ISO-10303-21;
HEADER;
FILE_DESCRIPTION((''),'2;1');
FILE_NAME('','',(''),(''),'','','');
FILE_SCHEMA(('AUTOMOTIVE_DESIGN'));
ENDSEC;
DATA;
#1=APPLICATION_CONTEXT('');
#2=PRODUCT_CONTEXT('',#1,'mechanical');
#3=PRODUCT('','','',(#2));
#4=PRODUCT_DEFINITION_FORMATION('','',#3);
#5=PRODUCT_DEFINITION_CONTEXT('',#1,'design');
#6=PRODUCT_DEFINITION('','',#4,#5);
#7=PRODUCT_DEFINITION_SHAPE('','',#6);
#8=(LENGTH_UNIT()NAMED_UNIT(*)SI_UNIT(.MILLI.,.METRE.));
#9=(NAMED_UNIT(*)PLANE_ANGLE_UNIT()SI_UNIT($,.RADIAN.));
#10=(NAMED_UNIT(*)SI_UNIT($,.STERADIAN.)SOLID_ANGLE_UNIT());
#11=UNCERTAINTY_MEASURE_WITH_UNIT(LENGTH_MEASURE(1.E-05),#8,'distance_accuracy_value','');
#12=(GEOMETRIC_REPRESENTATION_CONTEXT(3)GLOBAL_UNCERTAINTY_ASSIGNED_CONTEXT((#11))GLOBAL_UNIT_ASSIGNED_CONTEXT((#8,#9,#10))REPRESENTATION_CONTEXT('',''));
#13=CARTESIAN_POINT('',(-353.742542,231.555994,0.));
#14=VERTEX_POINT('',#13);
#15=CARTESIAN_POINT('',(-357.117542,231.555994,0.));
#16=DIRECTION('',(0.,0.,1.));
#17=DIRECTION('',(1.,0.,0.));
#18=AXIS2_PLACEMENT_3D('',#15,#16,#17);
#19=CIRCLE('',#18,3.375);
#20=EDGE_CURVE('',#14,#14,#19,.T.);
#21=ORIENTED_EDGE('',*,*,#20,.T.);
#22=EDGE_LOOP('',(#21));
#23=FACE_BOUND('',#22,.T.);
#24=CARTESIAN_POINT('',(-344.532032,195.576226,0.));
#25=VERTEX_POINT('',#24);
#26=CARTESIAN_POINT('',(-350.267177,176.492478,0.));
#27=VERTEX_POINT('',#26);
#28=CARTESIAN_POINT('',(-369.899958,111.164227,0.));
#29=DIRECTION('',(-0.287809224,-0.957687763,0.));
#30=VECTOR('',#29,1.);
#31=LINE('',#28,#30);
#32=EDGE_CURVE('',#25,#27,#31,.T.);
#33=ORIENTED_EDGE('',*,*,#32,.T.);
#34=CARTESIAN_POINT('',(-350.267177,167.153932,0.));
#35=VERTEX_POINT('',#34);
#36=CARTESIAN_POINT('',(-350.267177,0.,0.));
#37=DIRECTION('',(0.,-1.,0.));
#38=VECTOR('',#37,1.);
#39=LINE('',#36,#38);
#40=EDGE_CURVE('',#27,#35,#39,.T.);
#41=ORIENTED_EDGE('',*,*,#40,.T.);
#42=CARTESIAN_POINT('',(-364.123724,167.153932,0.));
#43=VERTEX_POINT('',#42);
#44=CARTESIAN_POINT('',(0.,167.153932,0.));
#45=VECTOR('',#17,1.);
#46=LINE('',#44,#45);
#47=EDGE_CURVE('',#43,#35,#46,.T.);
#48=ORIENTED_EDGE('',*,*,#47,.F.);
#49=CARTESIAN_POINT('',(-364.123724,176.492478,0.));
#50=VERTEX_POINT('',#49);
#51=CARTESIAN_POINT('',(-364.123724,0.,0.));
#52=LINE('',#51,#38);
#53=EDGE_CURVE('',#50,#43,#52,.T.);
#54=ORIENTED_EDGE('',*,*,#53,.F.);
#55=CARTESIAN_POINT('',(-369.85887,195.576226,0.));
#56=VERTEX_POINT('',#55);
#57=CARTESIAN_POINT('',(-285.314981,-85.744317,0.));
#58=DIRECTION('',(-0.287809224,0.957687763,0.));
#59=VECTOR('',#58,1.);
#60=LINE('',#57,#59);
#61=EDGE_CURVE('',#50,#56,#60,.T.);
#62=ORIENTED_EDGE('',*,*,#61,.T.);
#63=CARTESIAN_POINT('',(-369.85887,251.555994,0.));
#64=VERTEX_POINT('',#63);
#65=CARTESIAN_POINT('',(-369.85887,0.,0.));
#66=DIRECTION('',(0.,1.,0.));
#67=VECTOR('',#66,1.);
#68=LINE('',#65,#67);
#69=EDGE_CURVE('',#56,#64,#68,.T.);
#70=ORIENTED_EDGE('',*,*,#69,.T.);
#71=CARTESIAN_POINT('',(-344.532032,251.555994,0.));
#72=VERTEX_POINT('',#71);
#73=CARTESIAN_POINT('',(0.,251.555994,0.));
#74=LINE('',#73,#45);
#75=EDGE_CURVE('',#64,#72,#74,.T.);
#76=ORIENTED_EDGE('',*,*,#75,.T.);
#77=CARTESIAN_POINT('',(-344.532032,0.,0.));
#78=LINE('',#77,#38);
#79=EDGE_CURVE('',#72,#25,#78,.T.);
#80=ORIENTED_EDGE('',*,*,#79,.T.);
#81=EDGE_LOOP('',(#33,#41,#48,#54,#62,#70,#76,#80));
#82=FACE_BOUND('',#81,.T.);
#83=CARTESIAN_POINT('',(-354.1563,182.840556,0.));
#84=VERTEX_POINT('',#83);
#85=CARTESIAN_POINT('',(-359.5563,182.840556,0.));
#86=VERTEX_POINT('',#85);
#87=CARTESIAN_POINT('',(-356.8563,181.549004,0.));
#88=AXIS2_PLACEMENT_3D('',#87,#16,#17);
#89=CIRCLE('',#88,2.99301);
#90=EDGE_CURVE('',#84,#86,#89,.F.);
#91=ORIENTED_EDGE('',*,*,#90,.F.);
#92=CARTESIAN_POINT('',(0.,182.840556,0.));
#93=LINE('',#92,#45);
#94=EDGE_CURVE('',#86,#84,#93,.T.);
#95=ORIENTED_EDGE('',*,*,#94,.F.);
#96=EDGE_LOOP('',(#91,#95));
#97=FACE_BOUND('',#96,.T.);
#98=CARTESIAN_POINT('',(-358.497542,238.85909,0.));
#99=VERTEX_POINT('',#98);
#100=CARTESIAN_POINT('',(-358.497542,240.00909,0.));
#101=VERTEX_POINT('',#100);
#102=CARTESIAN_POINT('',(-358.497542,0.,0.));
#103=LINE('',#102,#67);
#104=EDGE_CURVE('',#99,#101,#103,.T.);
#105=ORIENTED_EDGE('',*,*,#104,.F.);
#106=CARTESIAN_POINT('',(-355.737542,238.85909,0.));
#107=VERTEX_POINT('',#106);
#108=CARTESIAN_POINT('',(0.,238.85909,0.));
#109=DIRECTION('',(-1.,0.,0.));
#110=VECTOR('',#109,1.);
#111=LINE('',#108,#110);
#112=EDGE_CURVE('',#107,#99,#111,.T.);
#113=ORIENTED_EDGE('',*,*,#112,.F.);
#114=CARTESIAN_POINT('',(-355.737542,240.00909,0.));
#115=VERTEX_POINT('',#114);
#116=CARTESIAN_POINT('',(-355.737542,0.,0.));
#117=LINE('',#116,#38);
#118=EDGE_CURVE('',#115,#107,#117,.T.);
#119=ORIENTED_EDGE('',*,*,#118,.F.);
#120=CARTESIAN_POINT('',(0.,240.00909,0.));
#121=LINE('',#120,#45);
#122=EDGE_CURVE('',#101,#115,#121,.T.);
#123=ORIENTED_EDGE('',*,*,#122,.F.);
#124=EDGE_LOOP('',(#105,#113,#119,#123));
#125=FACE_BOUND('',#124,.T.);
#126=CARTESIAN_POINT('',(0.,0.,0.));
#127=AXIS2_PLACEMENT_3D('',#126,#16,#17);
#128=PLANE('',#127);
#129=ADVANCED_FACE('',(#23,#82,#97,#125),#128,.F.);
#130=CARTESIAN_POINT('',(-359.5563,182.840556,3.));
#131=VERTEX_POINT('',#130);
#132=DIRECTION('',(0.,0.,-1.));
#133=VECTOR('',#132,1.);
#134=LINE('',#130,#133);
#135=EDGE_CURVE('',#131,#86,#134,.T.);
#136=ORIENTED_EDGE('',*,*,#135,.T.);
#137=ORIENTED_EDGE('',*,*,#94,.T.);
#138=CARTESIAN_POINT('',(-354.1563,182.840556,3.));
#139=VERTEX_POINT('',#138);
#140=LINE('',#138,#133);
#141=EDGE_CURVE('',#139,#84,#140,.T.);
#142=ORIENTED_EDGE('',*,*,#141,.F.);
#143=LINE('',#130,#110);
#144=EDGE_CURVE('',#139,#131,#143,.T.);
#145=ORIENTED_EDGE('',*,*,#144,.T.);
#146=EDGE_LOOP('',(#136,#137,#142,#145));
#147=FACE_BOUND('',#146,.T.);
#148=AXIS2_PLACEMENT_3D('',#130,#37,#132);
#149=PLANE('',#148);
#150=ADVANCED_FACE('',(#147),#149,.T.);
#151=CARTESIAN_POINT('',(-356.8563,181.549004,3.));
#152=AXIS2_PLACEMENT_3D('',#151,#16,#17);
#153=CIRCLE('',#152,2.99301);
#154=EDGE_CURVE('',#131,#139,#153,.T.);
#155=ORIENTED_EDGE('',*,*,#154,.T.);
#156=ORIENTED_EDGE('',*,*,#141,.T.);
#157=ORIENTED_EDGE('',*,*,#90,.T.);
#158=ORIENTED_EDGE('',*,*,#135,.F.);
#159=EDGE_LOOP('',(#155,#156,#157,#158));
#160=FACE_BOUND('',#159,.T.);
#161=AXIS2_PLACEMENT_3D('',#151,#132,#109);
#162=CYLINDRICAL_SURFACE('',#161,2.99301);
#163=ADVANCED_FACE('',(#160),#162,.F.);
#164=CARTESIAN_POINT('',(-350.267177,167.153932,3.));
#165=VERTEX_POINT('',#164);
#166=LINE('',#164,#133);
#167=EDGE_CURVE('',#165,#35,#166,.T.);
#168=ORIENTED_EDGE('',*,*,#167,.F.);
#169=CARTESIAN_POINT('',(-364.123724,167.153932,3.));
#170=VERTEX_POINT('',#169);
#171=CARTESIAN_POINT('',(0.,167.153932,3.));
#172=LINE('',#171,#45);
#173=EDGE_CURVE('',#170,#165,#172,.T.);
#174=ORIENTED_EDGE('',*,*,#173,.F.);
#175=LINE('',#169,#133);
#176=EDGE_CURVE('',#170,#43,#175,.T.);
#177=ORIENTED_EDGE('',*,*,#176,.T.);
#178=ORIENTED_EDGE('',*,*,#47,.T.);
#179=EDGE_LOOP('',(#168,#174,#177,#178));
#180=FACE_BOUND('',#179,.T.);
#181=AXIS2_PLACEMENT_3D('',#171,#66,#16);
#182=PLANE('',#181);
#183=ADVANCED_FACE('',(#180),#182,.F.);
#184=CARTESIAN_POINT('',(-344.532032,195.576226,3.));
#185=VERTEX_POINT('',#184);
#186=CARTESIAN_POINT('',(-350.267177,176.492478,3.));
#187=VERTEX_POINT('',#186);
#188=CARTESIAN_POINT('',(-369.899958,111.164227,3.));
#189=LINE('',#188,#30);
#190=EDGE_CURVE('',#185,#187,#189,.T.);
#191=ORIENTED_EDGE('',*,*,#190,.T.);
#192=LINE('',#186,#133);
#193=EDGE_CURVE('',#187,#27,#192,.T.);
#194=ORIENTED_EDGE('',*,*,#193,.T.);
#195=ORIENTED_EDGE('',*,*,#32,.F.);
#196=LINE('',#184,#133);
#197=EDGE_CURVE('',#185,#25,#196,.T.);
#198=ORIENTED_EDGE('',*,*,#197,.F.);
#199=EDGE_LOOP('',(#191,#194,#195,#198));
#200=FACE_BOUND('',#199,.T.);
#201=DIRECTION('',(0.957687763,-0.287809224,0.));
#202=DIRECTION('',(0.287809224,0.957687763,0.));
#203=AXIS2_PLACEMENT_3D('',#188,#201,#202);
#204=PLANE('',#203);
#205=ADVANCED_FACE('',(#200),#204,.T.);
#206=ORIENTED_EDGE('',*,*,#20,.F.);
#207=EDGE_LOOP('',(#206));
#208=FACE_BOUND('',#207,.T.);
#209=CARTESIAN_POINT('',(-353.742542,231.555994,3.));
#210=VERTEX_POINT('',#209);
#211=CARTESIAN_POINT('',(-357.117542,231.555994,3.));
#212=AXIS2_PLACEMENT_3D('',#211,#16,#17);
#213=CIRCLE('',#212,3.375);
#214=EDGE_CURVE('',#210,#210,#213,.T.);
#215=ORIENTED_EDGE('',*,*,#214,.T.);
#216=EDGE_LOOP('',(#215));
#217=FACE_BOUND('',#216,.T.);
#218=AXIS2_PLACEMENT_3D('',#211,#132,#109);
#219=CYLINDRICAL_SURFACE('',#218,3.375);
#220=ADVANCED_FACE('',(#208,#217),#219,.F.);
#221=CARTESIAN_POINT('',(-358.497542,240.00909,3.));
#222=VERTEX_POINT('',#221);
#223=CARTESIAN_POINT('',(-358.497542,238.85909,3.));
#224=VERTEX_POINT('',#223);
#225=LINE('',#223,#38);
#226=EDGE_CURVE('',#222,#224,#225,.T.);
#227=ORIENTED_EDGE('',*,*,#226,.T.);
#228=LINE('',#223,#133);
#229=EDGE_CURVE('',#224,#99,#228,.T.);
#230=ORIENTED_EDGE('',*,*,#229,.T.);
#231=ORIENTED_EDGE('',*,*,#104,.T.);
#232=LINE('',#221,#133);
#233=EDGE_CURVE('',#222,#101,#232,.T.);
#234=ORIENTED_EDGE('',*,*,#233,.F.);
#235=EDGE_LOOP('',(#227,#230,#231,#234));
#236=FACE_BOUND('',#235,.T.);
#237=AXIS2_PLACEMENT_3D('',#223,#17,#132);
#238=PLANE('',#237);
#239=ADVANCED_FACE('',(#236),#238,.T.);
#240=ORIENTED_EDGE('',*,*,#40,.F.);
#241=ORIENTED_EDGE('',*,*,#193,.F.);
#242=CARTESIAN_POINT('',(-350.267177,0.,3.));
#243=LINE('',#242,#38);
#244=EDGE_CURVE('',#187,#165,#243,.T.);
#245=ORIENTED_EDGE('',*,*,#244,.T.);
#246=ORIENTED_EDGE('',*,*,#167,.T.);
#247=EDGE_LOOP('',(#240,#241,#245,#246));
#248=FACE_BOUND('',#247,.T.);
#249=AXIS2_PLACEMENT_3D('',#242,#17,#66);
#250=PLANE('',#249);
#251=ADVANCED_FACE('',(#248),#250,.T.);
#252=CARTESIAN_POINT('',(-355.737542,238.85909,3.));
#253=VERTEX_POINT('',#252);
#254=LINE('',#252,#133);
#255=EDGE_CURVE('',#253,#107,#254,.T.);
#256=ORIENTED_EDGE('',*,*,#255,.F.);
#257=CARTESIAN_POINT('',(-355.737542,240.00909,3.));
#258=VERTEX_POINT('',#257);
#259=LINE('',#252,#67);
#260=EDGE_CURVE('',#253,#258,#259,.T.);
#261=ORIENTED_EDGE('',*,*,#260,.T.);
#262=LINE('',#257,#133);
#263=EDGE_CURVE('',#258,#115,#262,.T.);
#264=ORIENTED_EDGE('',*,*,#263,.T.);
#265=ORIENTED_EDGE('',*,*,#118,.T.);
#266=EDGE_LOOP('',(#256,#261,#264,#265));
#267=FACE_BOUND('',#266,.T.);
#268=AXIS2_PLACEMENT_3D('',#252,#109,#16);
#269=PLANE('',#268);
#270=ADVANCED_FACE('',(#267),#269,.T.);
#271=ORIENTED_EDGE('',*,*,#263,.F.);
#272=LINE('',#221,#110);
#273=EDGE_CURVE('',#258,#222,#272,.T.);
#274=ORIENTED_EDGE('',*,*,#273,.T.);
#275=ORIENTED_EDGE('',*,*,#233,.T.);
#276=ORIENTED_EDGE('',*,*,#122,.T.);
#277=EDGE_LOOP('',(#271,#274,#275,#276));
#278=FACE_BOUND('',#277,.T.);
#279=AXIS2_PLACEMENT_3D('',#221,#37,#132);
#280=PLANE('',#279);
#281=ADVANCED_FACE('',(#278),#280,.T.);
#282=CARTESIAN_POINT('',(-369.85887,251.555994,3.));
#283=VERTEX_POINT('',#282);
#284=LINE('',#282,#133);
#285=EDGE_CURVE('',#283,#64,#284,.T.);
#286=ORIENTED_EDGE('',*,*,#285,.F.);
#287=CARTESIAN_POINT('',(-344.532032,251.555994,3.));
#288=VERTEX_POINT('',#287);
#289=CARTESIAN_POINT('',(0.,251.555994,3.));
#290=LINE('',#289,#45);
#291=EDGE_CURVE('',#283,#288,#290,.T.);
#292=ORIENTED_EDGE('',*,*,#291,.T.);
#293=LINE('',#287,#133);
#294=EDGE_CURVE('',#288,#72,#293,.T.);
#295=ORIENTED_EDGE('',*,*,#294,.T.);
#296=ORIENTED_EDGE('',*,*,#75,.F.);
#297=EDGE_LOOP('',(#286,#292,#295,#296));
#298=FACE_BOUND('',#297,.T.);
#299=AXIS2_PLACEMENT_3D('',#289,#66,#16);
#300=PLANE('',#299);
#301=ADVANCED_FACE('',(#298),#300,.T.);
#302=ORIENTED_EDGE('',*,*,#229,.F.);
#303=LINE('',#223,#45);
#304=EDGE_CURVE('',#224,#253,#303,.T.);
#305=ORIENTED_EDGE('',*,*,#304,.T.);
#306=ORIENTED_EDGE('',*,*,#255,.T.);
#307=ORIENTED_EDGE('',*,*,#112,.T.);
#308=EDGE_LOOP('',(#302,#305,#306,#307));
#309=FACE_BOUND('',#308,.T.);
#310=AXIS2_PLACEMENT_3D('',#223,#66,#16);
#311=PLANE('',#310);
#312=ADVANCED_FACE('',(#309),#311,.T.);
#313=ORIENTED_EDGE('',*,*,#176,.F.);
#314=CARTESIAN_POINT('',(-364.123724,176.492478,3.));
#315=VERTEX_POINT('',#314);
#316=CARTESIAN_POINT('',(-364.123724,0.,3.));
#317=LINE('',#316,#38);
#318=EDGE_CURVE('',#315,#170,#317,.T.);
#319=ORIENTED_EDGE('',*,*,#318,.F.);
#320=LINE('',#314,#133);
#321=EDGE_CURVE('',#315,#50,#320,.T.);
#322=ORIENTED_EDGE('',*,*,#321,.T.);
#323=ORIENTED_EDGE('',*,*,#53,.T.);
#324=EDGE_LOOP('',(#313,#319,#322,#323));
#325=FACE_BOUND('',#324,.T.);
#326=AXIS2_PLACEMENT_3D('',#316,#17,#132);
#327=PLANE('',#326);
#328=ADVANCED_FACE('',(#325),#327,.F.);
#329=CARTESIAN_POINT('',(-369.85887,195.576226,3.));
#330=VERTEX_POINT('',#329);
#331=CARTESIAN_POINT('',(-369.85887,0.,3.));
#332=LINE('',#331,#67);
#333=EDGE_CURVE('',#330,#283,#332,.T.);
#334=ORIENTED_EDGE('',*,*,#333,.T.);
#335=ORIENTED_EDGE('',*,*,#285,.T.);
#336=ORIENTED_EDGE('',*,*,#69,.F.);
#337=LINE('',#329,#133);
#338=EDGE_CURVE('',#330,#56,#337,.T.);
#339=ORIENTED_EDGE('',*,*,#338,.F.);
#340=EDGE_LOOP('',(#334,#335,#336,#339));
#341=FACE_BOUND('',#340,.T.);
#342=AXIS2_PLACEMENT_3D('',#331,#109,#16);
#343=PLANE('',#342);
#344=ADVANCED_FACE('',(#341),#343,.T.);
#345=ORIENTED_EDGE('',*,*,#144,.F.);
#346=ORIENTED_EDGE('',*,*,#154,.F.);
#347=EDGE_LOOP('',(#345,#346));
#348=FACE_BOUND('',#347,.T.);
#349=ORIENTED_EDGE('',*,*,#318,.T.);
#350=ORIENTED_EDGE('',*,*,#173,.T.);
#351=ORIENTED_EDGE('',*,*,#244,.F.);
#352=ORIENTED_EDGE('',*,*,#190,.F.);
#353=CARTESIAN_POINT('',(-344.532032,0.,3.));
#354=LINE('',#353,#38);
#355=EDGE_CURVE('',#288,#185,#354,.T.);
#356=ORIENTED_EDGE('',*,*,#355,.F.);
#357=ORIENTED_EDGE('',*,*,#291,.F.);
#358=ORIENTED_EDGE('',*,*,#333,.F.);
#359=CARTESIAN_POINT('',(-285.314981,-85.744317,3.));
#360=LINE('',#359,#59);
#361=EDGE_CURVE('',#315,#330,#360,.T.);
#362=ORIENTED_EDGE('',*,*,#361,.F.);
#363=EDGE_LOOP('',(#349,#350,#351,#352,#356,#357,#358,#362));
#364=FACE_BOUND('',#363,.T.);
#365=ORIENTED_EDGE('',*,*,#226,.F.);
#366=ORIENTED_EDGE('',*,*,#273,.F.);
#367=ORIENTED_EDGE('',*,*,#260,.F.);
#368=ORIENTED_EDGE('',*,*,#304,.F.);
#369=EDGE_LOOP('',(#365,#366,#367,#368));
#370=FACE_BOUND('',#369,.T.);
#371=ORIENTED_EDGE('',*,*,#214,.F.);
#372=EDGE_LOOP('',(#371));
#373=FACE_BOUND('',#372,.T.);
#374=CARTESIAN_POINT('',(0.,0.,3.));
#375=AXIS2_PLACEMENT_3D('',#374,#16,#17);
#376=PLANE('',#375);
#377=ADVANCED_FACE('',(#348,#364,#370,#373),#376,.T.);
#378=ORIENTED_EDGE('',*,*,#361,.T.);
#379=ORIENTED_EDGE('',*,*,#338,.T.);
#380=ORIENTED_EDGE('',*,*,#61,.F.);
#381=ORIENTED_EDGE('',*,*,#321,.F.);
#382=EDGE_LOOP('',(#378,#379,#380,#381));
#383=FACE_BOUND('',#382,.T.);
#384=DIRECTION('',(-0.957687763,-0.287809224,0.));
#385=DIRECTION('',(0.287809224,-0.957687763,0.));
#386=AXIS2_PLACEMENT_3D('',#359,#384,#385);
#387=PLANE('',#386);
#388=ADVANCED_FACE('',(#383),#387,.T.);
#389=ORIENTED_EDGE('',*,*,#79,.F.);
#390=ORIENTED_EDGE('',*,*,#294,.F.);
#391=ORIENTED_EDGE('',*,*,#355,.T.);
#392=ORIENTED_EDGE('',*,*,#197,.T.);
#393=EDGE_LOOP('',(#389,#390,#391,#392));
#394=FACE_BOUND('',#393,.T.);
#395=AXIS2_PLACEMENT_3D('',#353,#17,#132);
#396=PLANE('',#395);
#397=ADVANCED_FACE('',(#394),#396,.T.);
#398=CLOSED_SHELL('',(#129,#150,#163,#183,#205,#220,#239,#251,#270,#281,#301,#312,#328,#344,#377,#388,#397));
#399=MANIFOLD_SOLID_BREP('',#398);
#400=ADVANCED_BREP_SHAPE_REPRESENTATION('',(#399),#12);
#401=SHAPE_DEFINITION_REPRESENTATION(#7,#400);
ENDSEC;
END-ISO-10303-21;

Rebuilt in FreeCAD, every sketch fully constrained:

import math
import FreeCAD as App
import Part
import Sketcher

V = App.Vector
Q = App.Units.Quantity


def add_polygon(sketch, points):
    """Adds a closed chain of lines whose ends are joined by coincident constraints."""
    first, n = sketch.GeometryCount, len(points)
    for a, b in zip(points, points[1:] + points[:1]):
        sketch.addGeometry(Part.LineSegment(App.Vector(*a, 0), App.Vector(*b, 0)), False)
    for i in range(n):
        sketch.addConstraint(Sketcher.Constraint("Coincident", first + i, 2, first + (i + 1) % n, 1))

doc = App.newDocument("Part")
body = doc.addObject("PartDesign::Body", "Body")

# Sketch on XY plane
sketch1 = body.newObject("Sketcher::SketchObject", "Sketch")
sketch1.AttachmentSupport = (doc.getObject("XY_Plane"), [""])
sketch1.MapMode = "FlatFace"
add_polygon(sketch1, [(-369.9, 195.6), (-364.1, 176.5), (-364.1, 167.2), (-350.3, 167.2), (-350.3, 176.5), (-344.5, 195.6), (-344.5, 251.6), (-369.9, 251.6)])  # lines 0-7
sketch1.addGeometry(Part.Circle(V(-357.1, 231.6, 0), V(0, 0, 1), 3.4), False)  # 8
sketch1.addConstraint([
    Sketcher.Constraint("Vertical", 1),
    Sketcher.Constraint("Horizontal", 2),
    Sketcher.Constraint("Vertical", 3),
    Sketcher.Constraint("Vertical", 5),
    Sketcher.Constraint("Horizontal", 6),
    Sketcher.Constraint("Vertical", 7),
    Sketcher.Constraint("Horizontal", 0, 2, 3, 2),
    Sketcher.Constraint("Horizontal", 4, 2, 7, 2),
    Sketcher.Constraint("Equal", 0, 4),
    Sketcher.Constraint("Diameter", 8, Q("6.75 mm")),
    Sketcher.Constraint("DistanceY", 8, 3, 5, 2, Q("20 mm")),
    Sketcher.Constraint("Distance", 0, Q("19.926899 mm")),
    Sketcher.Constraint("DistanceY", 5, 1, 5, 2, Q("55.979769 mm")),
    Sketcher.Constraint("DistanceX", 2, 1, 2, 2, Q("13.856547 mm")),
    Sketcher.Constraint("DistanceX", 6, 2, 6, 1, Q("25.326838 mm")),
    Sketcher.Constraint("DistanceY", 1, 2, 1, 1, Q("9.338546 mm")),
    Sketcher.Constraint("DistanceX", 8, 3, -1, 1, Q("357.117542 mm")),
    Sketcher.Constraint("DistanceY", -1, 1, 0, 2, Q("176.492478 mm")),
    Sketcher.Constraint("DistanceX", 6, 2, -1, 1, Q("369.85887 mm")),
])
pad1 = body.newObject("PartDesign::Pad", "Pad")
pad1.Profile = sketch1
pad1.Length = 3

# Sketch on XY plane
sketch2 = body.newObject("Sketcher::SketchObject", "Sketch001")
sketch2.AttachmentSupport = (doc.getObject("XY_Plane"), [""])
sketch2.MapMode = "FlatFace"
sketch2.AttachmentOffset = App.Placement(V(0, 0, -9.5), App.Rotation())
sketch2.addGeometry(Part.LineSegment(V(-354.2, 182.8, 0), V(-359.6, 182.8, 0)), False)  # 0
sketch2.addGeometry(Part.ArcOfCircle(Part.Circle(V(-356.9, 181.5, 0), V(0, 0, 1), 3), math.radians(154), math.radians(386)), False)  # 1
add_polygon(sketch2, [(-358.5, 240), (-358.5, 238.9), (-355.7, 238.9), (-355.7, 240)])  # lines 2-5
sketch2.addConstraint([
    Sketcher.Constraint("Coincident", 0, 1, 1, 2),
    Sketcher.Constraint("Coincident", 1, 1, 0, 2),
    Sketcher.Constraint("Horizontal", 0),
    Sketcher.Constraint("Vertical", 2),
    Sketcher.Constraint("Horizontal", 3),
    Sketcher.Constraint("Vertical", 4),
    Sketcher.Constraint("Horizontal", 5),
    Sketcher.Constraint("DistanceX", 0, 2, 0, 1, Q("5.4 mm")),
    Sketcher.Constraint("DistanceX", 3, 1, 3, 2, Q("2.76 mm")),
    Sketcher.Constraint("DistanceY", 2, 2, 2, 1, Q("1.15 mm")),
    Sketcher.Constraint("Radius", 1, Q("2.99301 mm")),
    Sketcher.Constraint("DistanceX", 1, 3, -1, 1, Q("356.8563 mm")),
    Sketcher.Constraint("DistanceX", 2, 2, -1, 1, Q("358.497542 mm")),
    Sketcher.Constraint("DistanceY", -1, 1, 2, 2, Q("238.85909 mm")),
    Sketcher.Constraint("DistanceY", -1, 1, 1, 3, Q("181.549004 mm")),
])
pocket1 = body.newObject("PartDesign::Pocket", "Pocket")
pocket1.Profile = sketch2
pocket1.Type = "ThroughAll"
pocket1.Reversed = True

doc.recompute()
